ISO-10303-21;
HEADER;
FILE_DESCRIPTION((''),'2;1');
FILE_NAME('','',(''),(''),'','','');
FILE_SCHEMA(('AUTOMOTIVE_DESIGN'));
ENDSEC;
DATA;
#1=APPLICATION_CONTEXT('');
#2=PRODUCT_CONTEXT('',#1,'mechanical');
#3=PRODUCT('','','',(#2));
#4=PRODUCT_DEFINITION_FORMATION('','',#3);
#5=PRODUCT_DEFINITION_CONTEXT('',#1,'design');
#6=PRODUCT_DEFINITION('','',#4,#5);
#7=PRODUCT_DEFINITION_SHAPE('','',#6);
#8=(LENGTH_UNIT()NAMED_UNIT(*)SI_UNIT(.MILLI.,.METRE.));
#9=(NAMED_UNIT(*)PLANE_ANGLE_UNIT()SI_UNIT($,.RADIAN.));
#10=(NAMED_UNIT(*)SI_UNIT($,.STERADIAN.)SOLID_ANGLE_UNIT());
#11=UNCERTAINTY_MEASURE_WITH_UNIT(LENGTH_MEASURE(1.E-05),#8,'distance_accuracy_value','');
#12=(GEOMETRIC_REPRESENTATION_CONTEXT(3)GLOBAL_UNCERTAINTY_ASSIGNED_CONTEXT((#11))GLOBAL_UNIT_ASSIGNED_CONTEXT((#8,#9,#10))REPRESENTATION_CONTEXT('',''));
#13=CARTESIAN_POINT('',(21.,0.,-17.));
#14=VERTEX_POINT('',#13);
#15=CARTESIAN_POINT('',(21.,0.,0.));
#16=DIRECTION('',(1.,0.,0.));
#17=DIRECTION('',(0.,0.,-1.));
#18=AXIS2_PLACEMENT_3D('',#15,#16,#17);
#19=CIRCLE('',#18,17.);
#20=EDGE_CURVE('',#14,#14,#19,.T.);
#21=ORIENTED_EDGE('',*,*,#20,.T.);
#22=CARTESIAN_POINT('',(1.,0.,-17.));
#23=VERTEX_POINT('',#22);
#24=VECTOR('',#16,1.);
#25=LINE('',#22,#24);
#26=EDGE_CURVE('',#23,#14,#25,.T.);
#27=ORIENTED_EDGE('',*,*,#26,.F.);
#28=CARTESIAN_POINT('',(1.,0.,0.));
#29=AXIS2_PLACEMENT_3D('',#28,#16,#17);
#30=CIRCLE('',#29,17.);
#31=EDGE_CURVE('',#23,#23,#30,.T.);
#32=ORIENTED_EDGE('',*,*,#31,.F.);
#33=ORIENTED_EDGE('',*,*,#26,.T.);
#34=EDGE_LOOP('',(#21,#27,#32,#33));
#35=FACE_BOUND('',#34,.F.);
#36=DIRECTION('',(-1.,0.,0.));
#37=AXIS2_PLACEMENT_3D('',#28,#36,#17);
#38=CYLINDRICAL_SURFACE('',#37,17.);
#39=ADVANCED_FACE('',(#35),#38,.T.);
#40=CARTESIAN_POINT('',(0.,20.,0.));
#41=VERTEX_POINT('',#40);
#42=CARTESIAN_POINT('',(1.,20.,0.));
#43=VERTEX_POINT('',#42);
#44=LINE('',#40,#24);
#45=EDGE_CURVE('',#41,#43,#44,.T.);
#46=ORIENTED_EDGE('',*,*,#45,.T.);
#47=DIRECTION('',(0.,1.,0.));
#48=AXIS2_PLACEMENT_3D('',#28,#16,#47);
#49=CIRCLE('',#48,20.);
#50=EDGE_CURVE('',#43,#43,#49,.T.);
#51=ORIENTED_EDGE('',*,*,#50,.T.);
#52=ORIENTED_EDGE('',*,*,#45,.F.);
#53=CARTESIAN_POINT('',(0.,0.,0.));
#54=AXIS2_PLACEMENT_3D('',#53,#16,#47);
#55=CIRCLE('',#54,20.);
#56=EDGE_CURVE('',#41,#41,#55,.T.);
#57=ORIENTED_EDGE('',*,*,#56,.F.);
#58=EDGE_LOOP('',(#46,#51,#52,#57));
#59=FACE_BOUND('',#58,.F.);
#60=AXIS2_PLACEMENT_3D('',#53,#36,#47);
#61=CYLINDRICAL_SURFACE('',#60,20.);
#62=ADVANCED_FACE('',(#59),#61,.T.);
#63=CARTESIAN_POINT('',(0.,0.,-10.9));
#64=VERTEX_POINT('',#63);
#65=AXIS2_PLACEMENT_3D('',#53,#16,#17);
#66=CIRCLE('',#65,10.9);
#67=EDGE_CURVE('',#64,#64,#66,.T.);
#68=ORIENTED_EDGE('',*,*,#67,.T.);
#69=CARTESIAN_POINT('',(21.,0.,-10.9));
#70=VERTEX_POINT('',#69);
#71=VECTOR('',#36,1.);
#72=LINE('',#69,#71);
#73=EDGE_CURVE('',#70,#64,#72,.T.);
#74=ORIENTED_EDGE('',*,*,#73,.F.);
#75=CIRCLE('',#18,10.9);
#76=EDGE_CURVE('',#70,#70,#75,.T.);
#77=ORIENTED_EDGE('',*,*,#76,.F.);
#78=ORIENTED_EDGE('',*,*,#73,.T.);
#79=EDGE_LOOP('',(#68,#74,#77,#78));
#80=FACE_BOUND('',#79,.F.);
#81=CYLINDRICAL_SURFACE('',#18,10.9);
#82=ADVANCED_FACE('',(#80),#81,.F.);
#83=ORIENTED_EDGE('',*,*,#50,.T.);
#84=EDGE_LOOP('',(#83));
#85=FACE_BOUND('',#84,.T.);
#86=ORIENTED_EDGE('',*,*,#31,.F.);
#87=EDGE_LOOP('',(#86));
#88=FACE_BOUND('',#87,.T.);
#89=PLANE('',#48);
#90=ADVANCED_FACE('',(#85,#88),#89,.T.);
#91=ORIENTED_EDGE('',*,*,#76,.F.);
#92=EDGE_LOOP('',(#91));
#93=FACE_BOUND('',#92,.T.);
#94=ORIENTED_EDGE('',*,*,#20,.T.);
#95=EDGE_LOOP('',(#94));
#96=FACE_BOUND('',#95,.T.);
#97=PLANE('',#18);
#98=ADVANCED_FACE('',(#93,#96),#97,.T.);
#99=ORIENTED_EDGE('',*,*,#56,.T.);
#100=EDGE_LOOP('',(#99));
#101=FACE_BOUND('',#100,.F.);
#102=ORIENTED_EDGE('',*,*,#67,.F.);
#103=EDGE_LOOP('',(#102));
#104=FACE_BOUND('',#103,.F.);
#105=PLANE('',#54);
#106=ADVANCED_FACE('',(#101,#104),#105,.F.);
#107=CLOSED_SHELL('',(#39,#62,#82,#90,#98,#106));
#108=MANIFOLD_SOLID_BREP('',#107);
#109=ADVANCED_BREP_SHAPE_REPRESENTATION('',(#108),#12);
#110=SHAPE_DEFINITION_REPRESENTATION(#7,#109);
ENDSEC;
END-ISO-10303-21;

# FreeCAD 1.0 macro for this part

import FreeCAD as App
import Part
import Sketcher

V = App.Vector
Q = App.Units.Quantity

doc = App.newDocument("Part")
body = doc.addObject("PartDesign::Body", "Body")

# Sketch on YZ plane
sketch1 = body.newObject("Sketcher::SketchObject", "Sketch")
sketch1.AttachmentSupport = (doc.getObject("YZ_Plane"), [""])
sketch1.MapMode = "FlatFace"
sketch1.addGeometry(Part.Circle(V(0, 0, 0), V(0, 0, 1), 20), False)
sketch1.addConstraint([
    Sketcher.Constraint("Coincident", 0, 3, -1, 1),
    Sketcher.Constraint("Diameter", 0, Q("40 mm")),
])
pad1 = body.newObject("PartDesign::Pad", "Pad")
pad1.Profile = sketch1
pad1.Length = 1

# Sketch on YZ plane
sketch2 = body.newObject("Sketcher::SketchObject", "Sketch001")
sketch2.AttachmentSupport = (doc.getObject("YZ_Plane"), [""])
sketch2.MapMode = "FlatFace"
sketch2.AttachmentOffset = App.Placement(V(0, 0, 1), App.Rotation())
sketch2.addGeometry(Part.Circle(V(0, 0, 0), V(0, 0, 1), 17), False)
sketch2.addConstraint([
    Sketcher.Constraint("Coincident", 0, 3, -1, 1),
    Sketcher.Constraint("Diameter", 0, Q("34 mm")),
])
pad2 = body.newObject("PartDesign::Pad", "Pad001")
pad2.Profile = sketch2
pad2.Length = 20

# Sketch on YZ plane
sketch3 = body.newObject("Sketcher::SketchObject", "Sketch002")
sketch3.AttachmentSupport = (doc.getObject("YZ_Plane"), [""])
sketch3.MapMode = "FlatFace"
sketch3.addGeometry(Part.Circle(V(0, 0, 0), V(0, 0, 1), 5), False)
sketch3.addConstraint([
    Sketcher.Constraint("Coincident", 0, 3, -1, 1),
    Sketcher.Constraint("Diameter", 0, Q("10 mm")),
])
pad3 = body.newObject("PartDesign::Pad", "Pad002")
pad3.Profile = sketch3
pad3.Length = 10
pad3.Reversed = True

# Sketch on YZ plane
sketch4 = body.newObject("Sketcher::SketchObject", "Sketch003")
sketch4.AttachmentSupport = (doc.getObject("YZ_Plane"), [""])
sketch4.MapMode = "FlatFace"
sketch4.AttachmentOffset = App.Placement(V(0, 0, 21), App.Rotation())
sketch4.addGeometry(Part.Circle(V(0, 0, 0), V(0, 0, 1), 11), False)
sketch4.addConstraint([
    Sketcher.Constraint("Coincident", 0, 3, -1, 1),
    Sketcher.Constraint("Diameter", 0, Q("21.8 mm")),
])
pocket1 = body.newObject("PartDesign::Pocket", "Pocket")
pocket1.Profile = sketch4
pocket1.Type = "ThroughAll"

doc.recompute()
